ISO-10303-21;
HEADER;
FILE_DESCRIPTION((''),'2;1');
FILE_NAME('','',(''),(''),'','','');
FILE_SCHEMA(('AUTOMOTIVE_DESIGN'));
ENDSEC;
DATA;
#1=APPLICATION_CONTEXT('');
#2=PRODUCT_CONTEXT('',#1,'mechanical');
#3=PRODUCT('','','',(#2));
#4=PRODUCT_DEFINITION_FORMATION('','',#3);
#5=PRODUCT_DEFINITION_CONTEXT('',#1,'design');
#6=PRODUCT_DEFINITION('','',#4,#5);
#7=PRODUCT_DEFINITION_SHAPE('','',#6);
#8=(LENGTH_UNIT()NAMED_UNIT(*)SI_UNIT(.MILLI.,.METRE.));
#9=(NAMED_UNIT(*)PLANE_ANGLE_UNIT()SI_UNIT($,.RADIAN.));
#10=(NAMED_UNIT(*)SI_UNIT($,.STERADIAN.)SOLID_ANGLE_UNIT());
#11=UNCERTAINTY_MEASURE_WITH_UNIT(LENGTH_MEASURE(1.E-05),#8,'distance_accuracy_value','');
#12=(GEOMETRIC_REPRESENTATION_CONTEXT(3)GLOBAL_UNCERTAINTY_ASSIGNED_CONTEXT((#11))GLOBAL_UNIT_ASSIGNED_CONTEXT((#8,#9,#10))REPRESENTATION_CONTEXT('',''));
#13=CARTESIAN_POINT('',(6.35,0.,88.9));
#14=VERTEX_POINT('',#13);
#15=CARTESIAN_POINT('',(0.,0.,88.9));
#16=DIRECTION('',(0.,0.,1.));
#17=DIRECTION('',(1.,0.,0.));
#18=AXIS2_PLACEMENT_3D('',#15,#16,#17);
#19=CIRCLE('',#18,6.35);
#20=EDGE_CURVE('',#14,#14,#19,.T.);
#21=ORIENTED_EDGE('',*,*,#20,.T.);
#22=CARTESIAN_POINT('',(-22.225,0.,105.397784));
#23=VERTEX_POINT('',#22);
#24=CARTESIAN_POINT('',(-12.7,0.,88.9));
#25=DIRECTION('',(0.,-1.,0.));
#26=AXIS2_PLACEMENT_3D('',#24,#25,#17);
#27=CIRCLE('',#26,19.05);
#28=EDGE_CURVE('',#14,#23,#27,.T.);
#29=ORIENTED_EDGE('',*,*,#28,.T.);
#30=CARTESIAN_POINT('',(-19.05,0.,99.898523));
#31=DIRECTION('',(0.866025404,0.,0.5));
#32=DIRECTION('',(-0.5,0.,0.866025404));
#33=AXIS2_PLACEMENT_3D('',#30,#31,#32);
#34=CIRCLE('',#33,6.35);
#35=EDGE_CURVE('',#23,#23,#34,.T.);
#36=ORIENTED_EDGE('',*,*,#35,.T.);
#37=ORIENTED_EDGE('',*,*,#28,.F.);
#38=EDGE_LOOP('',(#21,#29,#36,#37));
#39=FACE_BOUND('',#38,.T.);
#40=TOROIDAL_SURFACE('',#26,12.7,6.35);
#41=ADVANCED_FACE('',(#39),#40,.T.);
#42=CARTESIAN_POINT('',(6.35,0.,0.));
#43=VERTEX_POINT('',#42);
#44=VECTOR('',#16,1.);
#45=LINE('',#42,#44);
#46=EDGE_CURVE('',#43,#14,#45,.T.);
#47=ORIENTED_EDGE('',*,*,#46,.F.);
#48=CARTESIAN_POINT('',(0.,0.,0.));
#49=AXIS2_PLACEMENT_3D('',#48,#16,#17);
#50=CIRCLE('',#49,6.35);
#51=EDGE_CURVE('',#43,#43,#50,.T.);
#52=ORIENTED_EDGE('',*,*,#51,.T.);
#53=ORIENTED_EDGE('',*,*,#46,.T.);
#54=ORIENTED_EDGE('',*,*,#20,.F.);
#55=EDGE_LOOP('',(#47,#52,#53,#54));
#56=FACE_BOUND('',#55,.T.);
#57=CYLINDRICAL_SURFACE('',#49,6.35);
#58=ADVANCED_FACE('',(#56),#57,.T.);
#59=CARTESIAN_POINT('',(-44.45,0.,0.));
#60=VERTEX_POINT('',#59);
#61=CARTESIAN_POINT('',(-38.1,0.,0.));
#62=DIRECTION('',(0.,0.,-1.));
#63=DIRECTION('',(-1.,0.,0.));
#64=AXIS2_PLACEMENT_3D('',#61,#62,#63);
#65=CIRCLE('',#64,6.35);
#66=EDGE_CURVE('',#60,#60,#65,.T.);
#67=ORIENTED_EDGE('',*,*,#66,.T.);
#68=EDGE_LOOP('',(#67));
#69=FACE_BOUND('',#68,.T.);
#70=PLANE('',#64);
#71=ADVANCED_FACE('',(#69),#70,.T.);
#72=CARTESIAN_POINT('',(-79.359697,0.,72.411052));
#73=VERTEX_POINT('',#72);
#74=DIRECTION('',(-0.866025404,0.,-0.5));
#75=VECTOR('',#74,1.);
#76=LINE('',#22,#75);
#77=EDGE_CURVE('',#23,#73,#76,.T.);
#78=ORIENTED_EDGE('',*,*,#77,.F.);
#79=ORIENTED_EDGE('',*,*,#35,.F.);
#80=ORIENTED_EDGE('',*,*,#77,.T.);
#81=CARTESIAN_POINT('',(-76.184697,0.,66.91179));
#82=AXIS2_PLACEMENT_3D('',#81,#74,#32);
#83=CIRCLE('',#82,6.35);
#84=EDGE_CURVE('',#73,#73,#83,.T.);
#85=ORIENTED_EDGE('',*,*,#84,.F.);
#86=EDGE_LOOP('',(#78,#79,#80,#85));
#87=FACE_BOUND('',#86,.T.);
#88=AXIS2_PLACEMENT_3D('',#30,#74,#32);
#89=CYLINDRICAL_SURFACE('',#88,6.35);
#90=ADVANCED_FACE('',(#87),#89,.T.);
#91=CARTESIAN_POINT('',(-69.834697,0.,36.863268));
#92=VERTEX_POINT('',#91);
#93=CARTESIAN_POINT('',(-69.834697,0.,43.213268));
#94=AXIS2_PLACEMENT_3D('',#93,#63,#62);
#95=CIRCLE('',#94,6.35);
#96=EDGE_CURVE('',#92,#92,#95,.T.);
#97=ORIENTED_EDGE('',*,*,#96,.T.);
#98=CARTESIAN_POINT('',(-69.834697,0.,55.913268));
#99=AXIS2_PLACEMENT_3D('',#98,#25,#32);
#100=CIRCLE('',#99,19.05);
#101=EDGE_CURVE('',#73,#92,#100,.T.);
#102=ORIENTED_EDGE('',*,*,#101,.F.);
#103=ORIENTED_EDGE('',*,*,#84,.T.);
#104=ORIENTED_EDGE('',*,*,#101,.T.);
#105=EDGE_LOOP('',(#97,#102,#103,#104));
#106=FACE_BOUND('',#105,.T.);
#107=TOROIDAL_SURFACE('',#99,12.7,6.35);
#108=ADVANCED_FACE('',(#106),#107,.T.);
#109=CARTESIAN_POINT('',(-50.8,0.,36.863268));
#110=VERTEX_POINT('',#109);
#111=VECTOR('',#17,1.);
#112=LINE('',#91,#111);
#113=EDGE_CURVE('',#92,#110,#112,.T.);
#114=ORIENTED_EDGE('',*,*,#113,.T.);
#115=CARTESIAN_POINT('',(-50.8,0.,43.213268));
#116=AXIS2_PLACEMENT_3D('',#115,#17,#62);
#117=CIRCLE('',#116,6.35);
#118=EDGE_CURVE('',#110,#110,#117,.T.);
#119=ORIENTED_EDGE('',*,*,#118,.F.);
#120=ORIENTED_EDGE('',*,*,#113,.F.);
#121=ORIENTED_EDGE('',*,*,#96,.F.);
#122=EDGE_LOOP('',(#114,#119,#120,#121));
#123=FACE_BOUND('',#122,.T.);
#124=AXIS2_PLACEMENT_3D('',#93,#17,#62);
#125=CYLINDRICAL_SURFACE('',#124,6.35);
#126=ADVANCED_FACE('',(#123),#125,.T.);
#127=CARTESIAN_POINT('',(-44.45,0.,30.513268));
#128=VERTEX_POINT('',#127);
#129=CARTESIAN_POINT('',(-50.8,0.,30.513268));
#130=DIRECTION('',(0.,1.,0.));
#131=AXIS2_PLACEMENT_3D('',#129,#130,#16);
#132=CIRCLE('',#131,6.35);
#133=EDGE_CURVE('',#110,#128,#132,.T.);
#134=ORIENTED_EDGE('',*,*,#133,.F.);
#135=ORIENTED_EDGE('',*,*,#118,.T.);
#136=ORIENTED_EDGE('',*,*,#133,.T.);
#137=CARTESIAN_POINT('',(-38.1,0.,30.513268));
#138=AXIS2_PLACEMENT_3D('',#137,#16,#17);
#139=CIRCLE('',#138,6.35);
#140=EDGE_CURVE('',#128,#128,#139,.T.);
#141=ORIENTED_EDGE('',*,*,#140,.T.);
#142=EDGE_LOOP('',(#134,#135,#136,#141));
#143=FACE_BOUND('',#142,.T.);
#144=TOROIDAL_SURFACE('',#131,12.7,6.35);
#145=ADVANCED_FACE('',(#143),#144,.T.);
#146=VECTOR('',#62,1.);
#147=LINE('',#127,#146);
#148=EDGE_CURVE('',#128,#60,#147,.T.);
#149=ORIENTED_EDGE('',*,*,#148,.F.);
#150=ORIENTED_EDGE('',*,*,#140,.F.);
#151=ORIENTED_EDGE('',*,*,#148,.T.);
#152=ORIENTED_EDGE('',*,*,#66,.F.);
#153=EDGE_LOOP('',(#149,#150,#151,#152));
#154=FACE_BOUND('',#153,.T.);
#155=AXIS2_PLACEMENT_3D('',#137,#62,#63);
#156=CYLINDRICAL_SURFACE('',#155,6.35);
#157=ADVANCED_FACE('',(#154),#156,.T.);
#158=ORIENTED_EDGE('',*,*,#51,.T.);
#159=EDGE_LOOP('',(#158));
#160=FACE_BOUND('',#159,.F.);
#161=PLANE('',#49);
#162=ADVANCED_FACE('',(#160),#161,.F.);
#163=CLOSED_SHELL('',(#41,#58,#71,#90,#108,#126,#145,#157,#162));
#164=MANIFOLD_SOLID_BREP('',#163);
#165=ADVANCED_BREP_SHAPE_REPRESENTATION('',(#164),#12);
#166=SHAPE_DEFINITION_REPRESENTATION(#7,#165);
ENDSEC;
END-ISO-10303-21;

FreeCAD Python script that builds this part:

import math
import FreeCAD as App
import Part
import Sketcher
Q = App.Units.Quantity

doc = App.newDocument("Part")
body = doc.addObject("PartDesign::Body", "Body")

sketch1 = body.newObject("Sketcher::SketchObject", "Sketch")
sketch1.AttachmentSupport = (doc.getObject("XY_Plane"), [""])
sketch1.MapMode = "FlatFace"
sketch1.addGeometry(Part.Circle(App.Vector(0, 0, 0), App.Vector(0, 0, 1), 6), False)
sketch1.addConstraint(Sketcher.Constraint("Coincident", 0, 3, -1, 1))
sketch1.addConstraint(Sketcher.Constraint("Diameter", 0, Q("0.5 in")))

sketch2 = body.newObject("Sketcher::SketchObject", "Sketch001")
sketch2.AttachmentSupport = (doc.getObject("XZ_Plane"), [""])
sketch2.MapMode = "FlatFace"
sketch2.addGeometry(Part.LineSegment(App.Vector(0, 0, 0), App.Vector(0, 89, 0)), False)
sketch2.addGeometry(Part.ArcOfCircle(Part.Circle(App.Vector(-13, 89, 0), App.Vector(0, 0, 1), 13), math.radians(0), math.radians(120)), False)
sketch2.addGeometry(Part.LineSegment(App.Vector(-19, 100, 0), App.Vector(-76, 67, 0)), False)
sketch2.addGeometry(Part.ArcOfCircle(Part.Circle(App.Vector(-70, 56, 0), App.Vector(0, 0, 1), 13), math.radians(120), math.radians(270)), False)
sketch2.addGeometry(Part.LineSegment(App.Vector(-70, 43, 0), App.Vector(-51, 43, 0)), False)
sketch2.addGeometry(Part.ArcOfCircle(Part.Circle(App.Vector(-51, 31, 0), App.Vector(0, 0, 1), 13), math.radians(0), math.radians(90)), False)
sketch2.addGeometry(Part.LineSegment(App.Vector(-38, 31, 0), App.Vector(-38, 0, 0)), False)
sketch2.addConstraint(Sketcher.Constraint("Tangent", 0, 2, 1, 1))
sketch2.addConstraint(Sketcher.Constraint("Tangent", 1, 2, 2, 1))
sketch2.addConstraint(Sketcher.Constraint("Tangent", 2, 2, 3, 1))
sketch2.addConstraint(Sketcher.Constraint("Tangent", 3, 2, 4, 1))
sketch2.addConstraint(Sketcher.Constraint("Tangent", 4, 2, 5, 2))
sketch2.addConstraint(Sketcher.Constraint("Tangent", 5, 1, 6, 1))
sketch2.addConstraint(Sketcher.Constraint("Vertical", 0))
sketch2.addConstraint(Sketcher.Constraint("Horizontal", 4))
sketch2.addConstraint(Sketcher.Constraint("Vertical", 6))
sketch2.addConstraint(Sketcher.Constraint("Coincident", 0, 1, -1, 1))
sketch2.addConstraint(Sketcher.Constraint("Equal", 1, 3))
sketch2.addConstraint(Sketcher.Constraint("Equal", 3, 5))
sketch2.addConstraint(Sketcher.Constraint("PointOnObject", 6, 2, -1))
sketch2.addConstraint(Sketcher.Constraint("Radius", 1, Q("0.5 in")))
sketch2.addConstraint(Sketcher.Constraint("DistanceY", 0, 1, 0, 2, Q("3.5 in")))
sketch2.addConstraint(Sketcher.Constraint("DistanceX", 5, 3, -1, 1, Q("2 in")))
sketch2.addConstraint(Sketcher.Constraint("Angle", 2, Q("-150 deg")))
sketch2.addConstraint(Sketcher.Constraint("DistanceX", 4, 1, 4, 2, Q("19.034697 mm")))
doc.recompute()

additivepipe = body.newObject("PartDesign::AdditivePipe", "AdditivePipe")
additivepipe.Profile = sketch1
additivepipe.Spine = (sketch2, ["Edge1", "Edge2", "Edge3", "Edge4", "Edge5", "Edge6", "Edge7"])

doc.recompute()
